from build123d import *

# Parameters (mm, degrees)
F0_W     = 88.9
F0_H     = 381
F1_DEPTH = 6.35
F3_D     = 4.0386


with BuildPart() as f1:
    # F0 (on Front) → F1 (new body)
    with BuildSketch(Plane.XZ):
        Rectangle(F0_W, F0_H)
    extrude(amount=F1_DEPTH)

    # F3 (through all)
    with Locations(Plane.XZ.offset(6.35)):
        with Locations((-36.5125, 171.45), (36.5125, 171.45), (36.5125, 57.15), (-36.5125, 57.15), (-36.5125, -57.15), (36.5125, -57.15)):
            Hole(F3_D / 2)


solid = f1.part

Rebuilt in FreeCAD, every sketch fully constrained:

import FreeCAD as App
import Part
import Sketcher
Q = App.Units.Quantity

doc = App.newDocument("Part")
body = doc.addObject("PartDesign::Body", "Body")

# Sketch on XZ plane
sketch1 = body.newObject("Sketcher::SketchObject", "Sketch")
sketch1.AttachmentSupport = (doc.getObject("XZ_Plane"), [""])
sketch1.MapMode = "FlatFace"
sketch1.addGeometry([
    Part.LineSegment(App.Vector(-44, 190, 0), App.Vector(-44, -190, 0)),
    Part.LineSegment(App.Vector(-44, -190, 0), App.Vector(44, -190, 0)),
    Part.LineSegment(App.Vector(44, -190, 0), App.Vector(44, 190, 0)),
    Part.LineSegment(App.Vector(44, 190, 0), App.Vector(-44, 190, 0)),
], False)
sketch1.addConstraint([
    Sketcher.Constraint("Coincident", 0, 2, 1, 1),
    Sketcher.Constraint("Coincident", 1, 2, 2, 1),
    Sketcher.Constraint("Coincident", 2, 2, 3, 1),
    Sketcher.Constraint("Coincident", 3, 2, 0, 1),
    Sketcher.Constraint("Vertical", 0),
    Sketcher.Constraint("Horizontal", 1),
    Sketcher.Constraint("Vertical", 2),
    Sketcher.Constraint("Horizontal", 3),
    Sketcher.Constraint("Symmetric", 0, 2, 2, 2, -1, 1),
    Sketcher.Constraint("DistanceY", 0, 2, 0, 1, Q("15 in")),
    Sketcher.Constraint("DistanceX", 1, 1, 1, 2, Q("3.5 in")),
])
pad1 = body.newObject("PartDesign::Pad", "Pad")
pad1.Profile = sketch1
pad1.Length = Q("0.25 in")

# Sketch on XZ plane
sketch2 = body.newObject("Sketcher::SketchObject", "Sketch001")
sketch2.AttachmentSupport = (doc.getObject("XZ_Plane"), [""])
sketch2.MapMode = "FlatFace"
sketch2.AttachmentOffset = App.Placement(App.Vector(0, 0, 0.25 * 25.4), App.Rotation())
sketch2.addGeometry([
    Part.Circle(App.Vector(-36.5, 171.4, 0), App.Vector(0, 0, 1), 2),  # 0
    Part.Circle(App.Vector(36.5, 171.4, 0), App.Vector(0, 0, 1), 2),  # 1
    Part.Circle(App.Vector(36.5, 57.1, 0), App.Vector(0, 0, 1), 2),  # 2
    Part.Circle(App.Vector(-36.5, 57.1, 0), App.Vector(0, 0, 1), 2),  # 3
    Part.Circle(App.Vector(-36.5, -57.1, 0), App.Vector(0, 0, 1), 2),  # 4
    Part.Circle(App.Vector(36.5, -57.1, 0), App.Vector(0, 0, 1), 2),  # 5
], False)
sketch2.addConstraint([
    Sketcher.Constraint("Equal", 0, 1),
    Sketcher.Constraint("Equal", 1, 2),
    Sketcher.Constraint("Equal", 2, 3),
    Sketcher.Constraint("Equal", 3, 4),
    Sketcher.Constraint("Equal", 4, 5),
    Sketcher.Constraint("Symmetric", 2, 3, 4, 3, -1, 1),
    Sketcher.Constraint("Symmetric", 3, 3, 5, 3, -1, 1),
    Sketcher.Constraint("Symmetric", 0, 3, 1, 3, -2),
    Sketcher.Constraint("Symmetric", 2, 3, 3, 3, -2),
    Sketcher.Constraint("Vertical", 1, 3, 2, 3),
    Sketcher.Constraint("Diameter", 0, Q("0.159 in")),
    Sketcher.Constraint("DistanceY", 4, 3, 0, 3, Q("9 in")),
    Sketcher.Constraint("DistanceY", 2, 3, 1, 3, Q("4.5 in")),
    Sketcher.Constraint("DistanceX", 0, 3, -1, 1, Q("1.4375 in")),
])
doc.recompute()
hole = body.newObject("PartDesign::Hole", "Hole")
hole.Profile = sketch2
hole.ThreadType = "None"
hole.Diameter = Q("0.159 in")
hole.DepthType = "ThroughAll"

doc.recompute()
